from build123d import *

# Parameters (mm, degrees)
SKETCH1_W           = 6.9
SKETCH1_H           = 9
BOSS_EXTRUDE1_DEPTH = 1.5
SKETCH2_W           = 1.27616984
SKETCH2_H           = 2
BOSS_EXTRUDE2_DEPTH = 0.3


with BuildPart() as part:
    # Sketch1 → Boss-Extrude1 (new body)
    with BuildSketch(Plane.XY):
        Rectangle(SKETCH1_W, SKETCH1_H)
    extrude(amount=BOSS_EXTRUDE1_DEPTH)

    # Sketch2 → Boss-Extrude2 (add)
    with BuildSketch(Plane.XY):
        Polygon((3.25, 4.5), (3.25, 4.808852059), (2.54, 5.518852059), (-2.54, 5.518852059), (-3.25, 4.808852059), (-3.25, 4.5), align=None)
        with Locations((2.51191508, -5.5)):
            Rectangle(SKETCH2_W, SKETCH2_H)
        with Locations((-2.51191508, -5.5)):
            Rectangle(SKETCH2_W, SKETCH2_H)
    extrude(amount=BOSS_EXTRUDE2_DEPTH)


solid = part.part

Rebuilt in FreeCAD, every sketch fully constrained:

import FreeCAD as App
import Part
import Sketcher
Q = App.Units.Quantity


def add_polygon(sketch, points):
    """Adds a closed chain of lines whose ends are joined by coincident constraints."""
    first, n = sketch.GeometryCount, len(points)
    for a, b in zip(points, points[1:] + points[:1]):
        sketch.addGeometry(Part.LineSegment(App.Vector(*a, 0), App.Vector(*b, 0)), False)
    for i in range(n):
        sketch.addConstraint(Sketcher.Constraint("Coincident", first + i, 2, first + (i + 1) % n, 1))

doc = App.newDocument("Part")
body = doc.addObject("PartDesign::Body", "Body")

sketch1 = body.newObject("Sketcher::SketchObject", "Sketch")
sketch1.AttachmentSupport = (doc.getObject("XY_Plane"), [""])
sketch1.MapMode = "FlatFace"
add_polygon(sketch1, [(-3, 4), (-3, -4), (3, -4), (3, 4)])
sketch1.addConstraint(Sketcher.Constraint("Vertical", 0))
sketch1.addConstraint(Sketcher.Constraint("Horizontal", 1))
sketch1.addConstraint(Sketcher.Constraint("Vertical", 2))
sketch1.addConstraint(Sketcher.Constraint("Horizontal", 3))
sketch1.addConstraint(Sketcher.Constraint("Symmetric", 0, 2, 2, 2, -1, 1))
sketch1.addConstraint(Sketcher.Constraint("DistanceY", 0, 2, 0, 1, Q("9 mm")))
sketch1.addConstraint(Sketcher.Constraint("DistanceX", 1, 1, 1, 2, Q("6.9 mm")))
pad1 = body.newObject("PartDesign::Pad", "Pad")
pad1.Profile = sketch1
pad1.Length = 1.5

sketch2 = body.newObject("Sketcher::SketchObject", "Sketch001")
sketch2.AttachmentSupport = (doc.getObject("XY_Plane"), [""])
sketch2.MapMode = "FlatFace"
add_polygon(sketch2, [(3.25, 4.5), (3.25, 4.81), (2.54, 5.52), (-2.54, 5.52), (-3.25, 4.81), (-3.25, 4.5)])
add_polygon(sketch2, [(1.87, -4.5), (1.87, -6.5), (3.15, -6.5), (3.15, -4.5)])
add_polygon(sketch2, [(-3.15, -4.5), (-3.15, -6.5), (-1.87, -6.5), (-1.87, -4.5)])
sketch2.addConstraint(Sketcher.Constraint("Vertical", 0))
sketch2.addConstraint(Sketcher.Constraint("Horizontal", 2))
sketch2.addConstraint(Sketcher.Constraint("Vertical", 4))
sketch2.addConstraint(Sketcher.Constraint("Horizontal", 5))
sketch2.addConstraint(Sketcher.Constraint("Vertical", 6))
sketch2.addConstraint(Sketcher.Constraint("Horizontal", 7))
sketch2.addConstraint(Sketcher.Constraint("Vertical", 8))
sketch2.addConstraint(Sketcher.Constraint("Horizontal", 9))
sketch2.addConstraint(Sketcher.Constraint("Vertical", 10))
sketch2.addConstraint(Sketcher.Constraint("Horizontal", 11))
sketch2.addConstraint(Sketcher.Constraint("Vertical", 12))
sketch2.addConstraint(Sketcher.Constraint("Horizontal", 13))
sketch2.addConstraint(Sketcher.Constraint("Symmetric", 0, 2, 3, 2, -2))
sketch2.addConstraint(Sketcher.Constraint("Symmetric", 7, 2, 10, 2, -2))
sketch2.addConstraint(Sketcher.Constraint("Symmetric", 9, 2, 12, 2, -2))
sketch2.addConstraint(Sketcher.Constraint("Perpendicular", 1, 3))
sketch2.addConstraint(Sketcher.Constraint("Equal", 1, 3))
sketch2.addConstraint(Sketcher.Constraint("DistanceY", 6, 2, 6, 1, Q("2 mm")))
sketch2.addConstraint(Sketcher.Constraint("DistanceX", 5, 1, 5, 2, Q("6.5 mm")))
sketch2.addConstraint(Sketcher.Constraint("DistanceY", 6, 2, 5, 2, Q("11 mm")))
sketch2.addConstraint(Sketcher.Constraint("DistanceX", 2, 2, 2, 1, Q("5.08 mm")))
sketch2.addConstraint(Sketcher.Constraint("DistanceY", -1, 1, 4, 2, Q("4.5 mm")))
sketch2.addConstraint(Sketcher.Constraint("DistanceX", 7, 2, 5, 2, Q("0.1 mm")))
sketch2.addConstraint(Sketcher.Constraint("DistanceX", 7, 1, 7, 2, Q("1.27617 mm")))
sketch2.addConstraint(Sketcher.Constraint("DistanceY", 0, 1, 0, 2, Q("0.308852 mm")))
pad2 = body.newObject("PartDesign::Pad", "Pad001")
pad2.Profile = sketch2
pad2.Length = 0.3

doc.recompute()
